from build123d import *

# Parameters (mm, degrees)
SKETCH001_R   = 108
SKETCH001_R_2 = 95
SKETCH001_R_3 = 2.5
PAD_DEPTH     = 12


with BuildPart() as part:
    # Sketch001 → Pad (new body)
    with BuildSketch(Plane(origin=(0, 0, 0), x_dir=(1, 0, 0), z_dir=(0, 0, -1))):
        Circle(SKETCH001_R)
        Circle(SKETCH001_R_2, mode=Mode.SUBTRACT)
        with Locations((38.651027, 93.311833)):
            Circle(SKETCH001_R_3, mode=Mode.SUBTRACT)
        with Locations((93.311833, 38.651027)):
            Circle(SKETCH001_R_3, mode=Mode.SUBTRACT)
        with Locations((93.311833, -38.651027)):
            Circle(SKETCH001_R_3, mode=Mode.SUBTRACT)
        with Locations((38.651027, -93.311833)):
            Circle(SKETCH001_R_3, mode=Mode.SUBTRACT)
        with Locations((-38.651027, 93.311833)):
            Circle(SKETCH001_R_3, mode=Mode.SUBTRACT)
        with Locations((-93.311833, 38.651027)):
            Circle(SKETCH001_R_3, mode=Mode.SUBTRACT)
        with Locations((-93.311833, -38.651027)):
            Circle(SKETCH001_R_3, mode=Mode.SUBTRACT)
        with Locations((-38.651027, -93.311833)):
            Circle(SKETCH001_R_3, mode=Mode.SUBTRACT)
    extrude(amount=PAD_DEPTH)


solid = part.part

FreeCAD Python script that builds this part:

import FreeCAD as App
import Part
import Sketcher

V = App.Vector
Q = App.Units.Quantity

doc = App.newDocument("Part")
body = doc.addObject("PartDesign::Body", "Body")

sketch1 = body.newObject("Sketcher::SketchObject", "Sketch")
sketch1.AttachmentSupport = (doc.getObject("XY_Plane"), [""])
sketch1.MapMode = "FlatFace"
sketch1.addGeometry([
    Part.Circle(V(0, 0, 0), V(0, 0, 1), 108),
    Part.Circle(V(-38.7, 93.3, 0), V(0, 0, 1), 2.5),
    Part.Circle(V(-93.3, 38.7, 0), V(0, 0, 1), 2.5),
    Part.Circle(V(0, 0, 0), V(0, 0, 1), 95),
    Part.Circle(V(38.7, 93.3, 0), V(0, 0, 1), 2.5),
    Part.Circle(V(93.3, 38.7, 0), V(0, 0, 1), 2.5),
    Part.Circle(V(-93.3, -38.7, 0), V(0, 0, 1), 2.5),
    Part.Circle(V(-38.7, -93.3, 0), V(0, 0, 1), 2.5),
    Part.Circle(V(93.3, -38.7, 0), V(0, 0, 1), 2.5),
    Part.Circle(V(38.7, -93.3, 0), V(0, 0, 1), 2.5),
], False)
sketch1.addConstraint([
    Sketcher.Constraint("Coincident", 0, 3, -1, 1),
    Sketcher.Constraint("Coincident", 3, 3, -1, 1),
    Sketcher.Constraint("Equal", 1, 2),
    Sketcher.Constraint("Equal", 2, 4),
    Sketcher.Constraint("Equal", 4, 5),
    Sketcher.Constraint("Equal", 5, 6),
    Sketcher.Constraint("Equal", 6, 7),
    Sketcher.Constraint("Equal", 7, 8),
    Sketcher.Constraint("Equal", 8, 9),
    Sketcher.Constraint("Symmetric", 5, 3, 6, 3, -1, 1),
    Sketcher.Constraint("Symmetric", 4, 3, 7, 3, -1, 1),
    Sketcher.Constraint("Symmetric", 2, 3, 8, 3, -1, 1),
    Sketcher.Constraint("Symmetric", 1, 3, 9, 3, -1, 1),
    Sketcher.Constraint("Symmetric", 1, 3, 4, 3, -2),
    Sketcher.Constraint("Symmetric", 2, 3, 5, 3, -2),
    Sketcher.Constraint("Diameter", 0, Q("216 mm")),
    Sketcher.Constraint("Diameter", 1, Q("5 mm")),
    Sketcher.Constraint("Diameter", 3, Q("190 mm")),
    Sketcher.Constraint("DistanceX", 2, 3, 4, 3, Q("131.96286 mm")),
    Sketcher.Constraint("DistanceY", 6, 3, 1, 3, Q("131.96286 mm")),
    Sketcher.Constraint("DistanceX", 1, 3, -1, 1, Q("38.651027 mm")),
    Sketcher.Constraint("DistanceY", -1, 1, 1, 3, Q("93.311833 mm")),
])
pad1 = body.newObject("PartDesign::Pad", "Pad")
pad1.Profile = sketch1
pad1.Length = 12
pad1.Reversed = True

doc.recompute()
